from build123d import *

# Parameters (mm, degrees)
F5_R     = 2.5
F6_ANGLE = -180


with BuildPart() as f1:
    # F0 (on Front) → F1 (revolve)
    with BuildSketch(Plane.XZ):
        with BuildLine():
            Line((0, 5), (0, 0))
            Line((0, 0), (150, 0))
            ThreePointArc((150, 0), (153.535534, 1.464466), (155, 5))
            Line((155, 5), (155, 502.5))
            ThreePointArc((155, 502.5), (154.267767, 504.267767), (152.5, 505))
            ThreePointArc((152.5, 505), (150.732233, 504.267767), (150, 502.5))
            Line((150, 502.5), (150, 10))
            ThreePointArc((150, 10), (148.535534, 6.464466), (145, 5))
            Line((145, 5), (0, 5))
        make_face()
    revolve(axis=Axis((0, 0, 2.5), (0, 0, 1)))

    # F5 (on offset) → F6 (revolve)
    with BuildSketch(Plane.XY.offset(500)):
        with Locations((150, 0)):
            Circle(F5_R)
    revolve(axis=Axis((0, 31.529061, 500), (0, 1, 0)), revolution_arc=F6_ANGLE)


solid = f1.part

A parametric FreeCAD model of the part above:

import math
import FreeCAD as App
import Part
import Sketcher
from FreeCAD import Vector

doc = App.newDocument("Part")
body = doc.addObject("PartDesign::Body", "Body")

sketch1 = body.newObject("Sketcher::SketchObject", "Sketch")
sketch1.AttachmentSupport = (doc.getObject("XZ_Plane"), [""])
sketch1.MapMode = "FlatFace"
sketch1.addGeometry(Part.LineSegment(Vector(0, 5, 0), Vector(0, 0, 0)), False)
sketch1.addGeometry(Part.LineSegment(Vector(0, 0, 0), Vector(150, 0, 0)), False)
sketch1.addGeometry(Part.ArcOfCircle(Part.Circle(Vector(150, 5, 0), Vector(0, 0, 1), 5), math.radians(-90), math.radians(0)), False)
sketch1.addGeometry(Part.LineSegment(Vector(155, 5, 0), Vector(155, 502.5, 0)), False)
sketch1.addGeometry(Part.ArcOfCircle(Part.Circle(Vector(152.5, 502.5, 0), Vector(0, 0, 1), 2.5), math.radians(0), math.radians(90)), False)
sketch1.addGeometry(Part.ArcOfCircle(Part.Circle(Vector(152.5, 502.5, 0), Vector(0, 0, 1), 2.5), math.radians(90), math.radians(180)), False)
sketch1.addGeometry(Part.LineSegment(Vector(150, 502.5, 0), Vector(150, 10, 0)), False)
sketch1.addGeometry(Part.ArcOfCircle(Part.Circle(Vector(145, 10, 0), Vector(0, 0, 1), 5), math.radians(-90), math.radians(0)), False)
sketch1.addGeometry(Part.LineSegment(Vector(145, 5, 0), Vector(0, 5, 0)), False)
sketch1.addConstraint(Sketcher.Constraint("Coincident", 0, 2, 1, 1))
sketch1.addConstraint(Sketcher.Constraint("Tangent", 1, 2, 2, 1))
sketch1.addConstraint(Sketcher.Constraint("Tangent", 2, 2, 3, 1))
sketch1.addConstraint(Sketcher.Constraint("Tangent", 3, 2, 4, 1))
sketch1.addConstraint(Sketcher.Constraint("Tangent", 4, 2, 5, 1))
sketch1.addConstraint(Sketcher.Constraint("Tangent", 5, 2, 6, 1))
sketch1.addConstraint(Sketcher.Constraint("Tangent", 6, 2, 7, 2))
sketch1.addConstraint(Sketcher.Constraint("Tangent", 7, 1, 8, 1))
sketch1.addConstraint(Sketcher.Constraint("Coincident", 8, 2, 0, 1))
sketch1.addConstraint(Sketcher.Constraint("Vertical", 0))
sketch1.addConstraint(Sketcher.Constraint("Horizontal", 1))
sketch1.addConstraint(Sketcher.Constraint("Vertical", 3))
sketch1.addConstraint(Sketcher.Constraint("Vertical", 6))
sketch1.addConstraint(Sketcher.Constraint("Horizontal", 8))
sketch1.addConstraint(Sketcher.Constraint("Coincident", 0, 2, -1, 1))
sketch1.addConstraint(Sketcher.Constraint("Equal", 4, 5))
sketch1.addConstraint(Sketcher.Constraint("Equal", 2, 7))
sketch1.addConstraint(Sketcher.Constraint("Horizontal", 2, 2, 7, 1))
sketch1.addConstraint(Sketcher.Constraint("Vertical", 5, 3, 4, 2))
sketch1.addConstraint(Sketcher.Constraint("Vertical", 1, 2, 5, 2))
sketch1.addConstraint(Sketcher.Constraint("Radius", 2, 5.0))
sketch1.addConstraint(Sketcher.Constraint("DistanceX", 1, 1, 1, 2, 150.0))
sketch1.addConstraint(Sketcher.Constraint("DistanceY", 3, 1, 3, 2, 497.5))
revolution = body.newObject("PartDesign::Revolution", "Revolution")
revolution.Profile = sketch1
revolution.ReferenceAxis = (sketch1, ["V_Axis"])
revolution.Angle = 360

sketch2 = body.newObject("Sketcher::SketchObject", "Sketch001")
sketch2.AttachmentSupport = (doc.getObject("XY_Plane"), [""])
sketch2.MapMode = "FlatFace"
sketch2.AttachmentOffset = App.Placement(Vector(0, 0, 500), App.Rotation())
sketch2.addGeometry(Part.Circle(Vector(150, 0, 0), Vector(0, 0, 1), 2.5), False)
sketch2.addConstraint(Sketcher.Constraint("PointOnObject", 0, 3, -1))
sketch2.addConstraint(Sketcher.Constraint("Diameter", 0, 5.0))
sketch2.addConstraint(Sketcher.Constraint("DistanceX", -1, 1, 0, 3, 150.0))
revolution2 = body.newObject("PartDesign::Revolution", "Revolution001")
revolution2.Profile = sketch2
revolution2.ReferenceAxis = (sketch2, ["V_Axis"])
revolution2.Angle = 180
revolution2.Reversed = True

doc.recompute()
